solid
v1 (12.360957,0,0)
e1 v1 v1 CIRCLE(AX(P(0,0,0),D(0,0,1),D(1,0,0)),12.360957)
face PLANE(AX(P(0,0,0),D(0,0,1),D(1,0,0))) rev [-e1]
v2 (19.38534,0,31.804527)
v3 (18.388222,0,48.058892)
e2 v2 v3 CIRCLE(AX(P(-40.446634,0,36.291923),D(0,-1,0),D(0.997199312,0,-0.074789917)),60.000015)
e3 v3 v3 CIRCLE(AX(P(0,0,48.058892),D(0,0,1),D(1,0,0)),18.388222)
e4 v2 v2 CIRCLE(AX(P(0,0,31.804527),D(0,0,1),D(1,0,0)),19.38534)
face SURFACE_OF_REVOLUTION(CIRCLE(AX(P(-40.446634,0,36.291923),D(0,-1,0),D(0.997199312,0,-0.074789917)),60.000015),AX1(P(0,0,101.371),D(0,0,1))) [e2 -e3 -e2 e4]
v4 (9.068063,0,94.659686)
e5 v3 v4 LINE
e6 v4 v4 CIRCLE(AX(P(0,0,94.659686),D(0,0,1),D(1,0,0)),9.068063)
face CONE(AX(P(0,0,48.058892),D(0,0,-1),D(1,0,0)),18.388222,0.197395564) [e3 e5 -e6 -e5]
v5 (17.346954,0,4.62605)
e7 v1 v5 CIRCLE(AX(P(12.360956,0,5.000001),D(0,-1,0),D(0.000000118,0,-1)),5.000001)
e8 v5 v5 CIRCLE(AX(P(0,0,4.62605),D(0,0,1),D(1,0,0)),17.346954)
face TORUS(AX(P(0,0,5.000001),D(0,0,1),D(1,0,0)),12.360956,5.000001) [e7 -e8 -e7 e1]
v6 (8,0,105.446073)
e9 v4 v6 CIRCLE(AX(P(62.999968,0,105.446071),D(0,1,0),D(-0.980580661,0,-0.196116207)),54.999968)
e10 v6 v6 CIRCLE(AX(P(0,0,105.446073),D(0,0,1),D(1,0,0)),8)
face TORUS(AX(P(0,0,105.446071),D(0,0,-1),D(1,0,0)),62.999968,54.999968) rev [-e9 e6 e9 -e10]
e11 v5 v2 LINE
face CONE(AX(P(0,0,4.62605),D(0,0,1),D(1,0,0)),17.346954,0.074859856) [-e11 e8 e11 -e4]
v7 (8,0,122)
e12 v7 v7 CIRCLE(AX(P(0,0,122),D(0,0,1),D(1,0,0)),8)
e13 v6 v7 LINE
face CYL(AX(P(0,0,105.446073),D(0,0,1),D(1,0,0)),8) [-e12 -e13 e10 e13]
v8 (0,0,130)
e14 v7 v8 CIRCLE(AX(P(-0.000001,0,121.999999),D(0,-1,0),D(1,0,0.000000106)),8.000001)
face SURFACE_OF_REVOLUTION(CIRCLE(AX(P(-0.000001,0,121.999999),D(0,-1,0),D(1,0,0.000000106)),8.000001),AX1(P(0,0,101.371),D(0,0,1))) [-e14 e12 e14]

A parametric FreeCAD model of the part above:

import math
import FreeCAD as App
import Part
import Sketcher
from FreeCAD import Vector
Q = App.Units.Quantity

doc = App.newDocument("Part")
body = doc.addObject("PartDesign::Body", "Body")

# Sketch on XZ plane
sketch1 = body.newObject("Sketcher::SketchObject", "Sketch")
sketch1.AttachmentSupport = (doc.getObject("XZ_Plane"), [""])
sketch1.MapMode = "FlatFace"
sketch1.addGeometry([
    Part.LineSegment(Vector(0, 130, 0), Vector(0, 0, 0)),  # 0
    Part.LineSegment(Vector(0, 0, 0), Vector(12.360957, 0, 0)),  # 1
    Part.ArcOfCircle(Part.Circle(Vector(12.360956, 5.000001, 0), Vector(0, 0, 1), 5.000001), math.radians(-89.999993), math.radians(-4.289168)),  # 2
    Part.LineSegment(Vector(17.346954, 4.62605, 0), Vector(19.38534, 31.804527, 0)),  # 3
    Part.ArcOfCircle(Part.Circle(Vector(-40.446634, 36.291923, 0), Vector(0, 0, 1), 60.000015), math.radians(-4.289152), math.radians(11.30993)),  # 4
    Part.LineSegment(Vector(18.388222, 48.058892, 0), Vector(9.068063, 94.659686, 0)),  # 5
    Part.ArcOfCircle(Part.Circle(Vector(62.999968, 105.446071, 0), Vector(0, 0, 1), 54.999968), math.radians(179.999998), math.radians(191.309937)),  # 6
    Part.LineSegment(Vector(8, 105.446073, 0), Vector(8, 122, 0)),  # 7
    Part.ArcOfCircle(Part.Circle(Vector(-0.000001, 121.999999, 0), Vector(0, 0, 1), 8.000001), math.radians(0.000006), math.radians(89.999994)),  # 8
], False)
sketch1.addConstraint([
    Sketcher.Constraint("Coincident", 0, 2, 1, 1),
    Sketcher.Constraint("Tangent", 1, 2, 2, 1),
    Sketcher.Constraint("Tangent", 2, 2, 3, 1),
    Sketcher.Constraint("Tangent", 3, 2, 4, 1),
    Sketcher.Constraint("Tangent", 4, 2, 5, 1),
    Sketcher.Constraint("Tangent", 5, 2, 6, 2),
    Sketcher.Constraint("Tangent", 6, 1, 7, 1),
    Sketcher.Constraint("Tangent", 7, 2, 8, 1),
    Sketcher.Constraint("Coincident", 8, 2, 0, 1),
    Sketcher.Constraint("Vertical", 0),
    Sketcher.Constraint("Horizontal", 1),
    Sketcher.Constraint("Vertical", 7),
    Sketcher.Constraint("Coincident", 0, 2, -1, 1),
    Sketcher.Constraint("PointOnObject", 8, 3, -2),
    Sketcher.Constraint("Radius", 2, Q("5.000001 mm")),
    Sketcher.Constraint("Radius", 8, Q("8.000001 mm")),
    Sketcher.Constraint("DistanceY", 0, 2, 0, 1, Q("130 mm")),
    Sketcher.Constraint("Radius", 4, Q("60.000015 mm")),
    Sketcher.Constraint("Radius", 6, Q("54.999968 mm")),
    Sketcher.Constraint("DistanceX", 4, 3, 6, 3, Q("103.446601 mm")),
    Sketcher.Constraint("Distance", 3, Q("27.254809 mm")),
    Sketcher.Constraint("Distance", 5, Q("47.523672 mm")),
    Sketcher.Constraint("DistanceX", 1, 1, 1, 2, Q("12.360957 mm")),
])
revolution = body.newObject("PartDesign::Revolution", "Revolution")
revolution.Profile = sketch1
revolution.ReferenceAxis = (sketch1, ["V_Axis"])
revolution.Angle = 360

doc.recompute()
